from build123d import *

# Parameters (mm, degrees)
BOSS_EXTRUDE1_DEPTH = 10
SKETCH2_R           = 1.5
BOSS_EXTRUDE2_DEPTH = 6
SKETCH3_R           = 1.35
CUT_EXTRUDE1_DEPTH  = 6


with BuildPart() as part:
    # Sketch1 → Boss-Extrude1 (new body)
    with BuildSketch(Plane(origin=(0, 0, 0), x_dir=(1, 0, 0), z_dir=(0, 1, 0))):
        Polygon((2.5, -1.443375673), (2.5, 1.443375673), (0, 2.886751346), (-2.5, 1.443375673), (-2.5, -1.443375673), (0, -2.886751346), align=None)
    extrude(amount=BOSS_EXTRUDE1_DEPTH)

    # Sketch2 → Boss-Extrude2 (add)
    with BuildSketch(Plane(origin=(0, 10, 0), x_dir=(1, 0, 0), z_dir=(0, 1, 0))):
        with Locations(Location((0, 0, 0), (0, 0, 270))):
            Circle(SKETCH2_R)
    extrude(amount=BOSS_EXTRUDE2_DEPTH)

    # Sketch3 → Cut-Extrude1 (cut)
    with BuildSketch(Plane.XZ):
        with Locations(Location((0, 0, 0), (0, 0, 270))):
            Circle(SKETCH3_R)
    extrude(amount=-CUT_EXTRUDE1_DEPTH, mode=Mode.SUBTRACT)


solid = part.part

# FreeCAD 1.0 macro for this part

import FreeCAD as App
import Part
import Sketcher
Q = App.Units.Quantity


def add_polygon(sketch, points):
    """Adds a closed chain of lines whose ends are joined by coincident constraints."""
    first, n = sketch.GeometryCount, len(points)
    for a, b in zip(points, points[1:] + points[:1]):
        sketch.addGeometry(Part.LineSegment(App.Vector(*a, 0), App.Vector(*b, 0)), False)
    for i in range(n):
        sketch.addConstraint(Sketcher.Constraint("Coincident", first + i, 2, first + (i + 1) % n, 1))

doc = App.newDocument("Part")
body = doc.addObject("PartDesign::Body", "Body")

# Sketch on XZ plane
sketch1 = doc.addObject("Sketcher::SketchObject", "Sketch")
body.addObject(sketch1)
sketch1.AttachmentSupport = (doc.XZ_Plane, [""])
sketch1.MapMode = "FlatFace"
add_polygon(sketch1, [(2.5, 1.443376), (2.5, -1.443376), (0, -2.886751), (-2.5, -1.443376), (-2.5, 1.443376), (0, 2.886751)])  # lines 0-5
sketch1.addConstraint([
    Sketcher.Constraint("Vertical", 0),
    Sketcher.Constraint("Vertical", 3),
    Sketcher.Constraint("Symmetric", 0, 2, 3, 2, -1, 1),
    Sketcher.Constraint("Symmetric", 1, 2, 4, 2, -1, 1),
    Sketcher.Constraint("PointOnObject", 1, 2, -2),
    Sketcher.Constraint("Parallel", 2, 5),
    Sketcher.Constraint("Horizontal", 0, 2, 2, 2),
    Sketcher.Constraint("Angle", 1, Q("-150 deg")),
    Sketcher.Constraint("DistanceX", 2, 2, 0, 2, Q("5 mm")),
    Sketcher.Constraint("DistanceY", 0, 2, 0, 1, Q("2.886751 mm")),
])
pad1 = doc.addObject("PartDesign::Pad", "Pad")
body.addObject(pad1)
pad1.Profile = sketch1
pad1.Length = 10
pad1.Reversed = True

# Sketch on XZ plane
sketch2 = doc.addObject("Sketcher::SketchObject", "Sketch001")
body.addObject(sketch2)
sketch2.AttachmentSupport = (doc.XZ_Plane, [""])
sketch2.MapMode = "FlatFace"
sketch2.AttachmentOffset = App.Placement(App.Vector(0, 0, -10), App.Rotation())
sketch2.addGeometry(Part.Circle(App.Vector(0, 0, 0), App.Vector(0, 0, 1), 1.5), False)
sketch2.addConstraint([
    Sketcher.Constraint("Coincident", 0, 3, -1, 1),
    Sketcher.Constraint("Diameter", 0, Q("3 mm")),
])
pad2 = doc.addObject("PartDesign::Pad", "Pad001")
body.addObject(pad2)
pad2.Profile = sketch2
pad2.Length = 6
pad2.Reversed = True

# Sketch on XZ plane
sketch3 = doc.addObject("Sketcher::SketchObject", "Sketch002")
body.addObject(sketch3)
sketch3.AttachmentSupport = (doc.XZ_Plane, [""])
sketch3.MapMode = "FlatFace"
sketch3.addGeometry(Part.Circle(App.Vector(0, 0, 0), App.Vector(0, 0, 1), 1.35), False)
sketch3.addConstraint([
    Sketcher.Constraint("Coincident", 0, 3, -1, 1),
    Sketcher.Constraint("Diameter", 0, Q("2.7 mm")),
])
pocket1 = doc.addObject("PartDesign::Pocket", "Pocket")
body.addObject(pocket1)
pocket1.Profile = sketch3
pocket1.Length = 6

doc.recompute()
